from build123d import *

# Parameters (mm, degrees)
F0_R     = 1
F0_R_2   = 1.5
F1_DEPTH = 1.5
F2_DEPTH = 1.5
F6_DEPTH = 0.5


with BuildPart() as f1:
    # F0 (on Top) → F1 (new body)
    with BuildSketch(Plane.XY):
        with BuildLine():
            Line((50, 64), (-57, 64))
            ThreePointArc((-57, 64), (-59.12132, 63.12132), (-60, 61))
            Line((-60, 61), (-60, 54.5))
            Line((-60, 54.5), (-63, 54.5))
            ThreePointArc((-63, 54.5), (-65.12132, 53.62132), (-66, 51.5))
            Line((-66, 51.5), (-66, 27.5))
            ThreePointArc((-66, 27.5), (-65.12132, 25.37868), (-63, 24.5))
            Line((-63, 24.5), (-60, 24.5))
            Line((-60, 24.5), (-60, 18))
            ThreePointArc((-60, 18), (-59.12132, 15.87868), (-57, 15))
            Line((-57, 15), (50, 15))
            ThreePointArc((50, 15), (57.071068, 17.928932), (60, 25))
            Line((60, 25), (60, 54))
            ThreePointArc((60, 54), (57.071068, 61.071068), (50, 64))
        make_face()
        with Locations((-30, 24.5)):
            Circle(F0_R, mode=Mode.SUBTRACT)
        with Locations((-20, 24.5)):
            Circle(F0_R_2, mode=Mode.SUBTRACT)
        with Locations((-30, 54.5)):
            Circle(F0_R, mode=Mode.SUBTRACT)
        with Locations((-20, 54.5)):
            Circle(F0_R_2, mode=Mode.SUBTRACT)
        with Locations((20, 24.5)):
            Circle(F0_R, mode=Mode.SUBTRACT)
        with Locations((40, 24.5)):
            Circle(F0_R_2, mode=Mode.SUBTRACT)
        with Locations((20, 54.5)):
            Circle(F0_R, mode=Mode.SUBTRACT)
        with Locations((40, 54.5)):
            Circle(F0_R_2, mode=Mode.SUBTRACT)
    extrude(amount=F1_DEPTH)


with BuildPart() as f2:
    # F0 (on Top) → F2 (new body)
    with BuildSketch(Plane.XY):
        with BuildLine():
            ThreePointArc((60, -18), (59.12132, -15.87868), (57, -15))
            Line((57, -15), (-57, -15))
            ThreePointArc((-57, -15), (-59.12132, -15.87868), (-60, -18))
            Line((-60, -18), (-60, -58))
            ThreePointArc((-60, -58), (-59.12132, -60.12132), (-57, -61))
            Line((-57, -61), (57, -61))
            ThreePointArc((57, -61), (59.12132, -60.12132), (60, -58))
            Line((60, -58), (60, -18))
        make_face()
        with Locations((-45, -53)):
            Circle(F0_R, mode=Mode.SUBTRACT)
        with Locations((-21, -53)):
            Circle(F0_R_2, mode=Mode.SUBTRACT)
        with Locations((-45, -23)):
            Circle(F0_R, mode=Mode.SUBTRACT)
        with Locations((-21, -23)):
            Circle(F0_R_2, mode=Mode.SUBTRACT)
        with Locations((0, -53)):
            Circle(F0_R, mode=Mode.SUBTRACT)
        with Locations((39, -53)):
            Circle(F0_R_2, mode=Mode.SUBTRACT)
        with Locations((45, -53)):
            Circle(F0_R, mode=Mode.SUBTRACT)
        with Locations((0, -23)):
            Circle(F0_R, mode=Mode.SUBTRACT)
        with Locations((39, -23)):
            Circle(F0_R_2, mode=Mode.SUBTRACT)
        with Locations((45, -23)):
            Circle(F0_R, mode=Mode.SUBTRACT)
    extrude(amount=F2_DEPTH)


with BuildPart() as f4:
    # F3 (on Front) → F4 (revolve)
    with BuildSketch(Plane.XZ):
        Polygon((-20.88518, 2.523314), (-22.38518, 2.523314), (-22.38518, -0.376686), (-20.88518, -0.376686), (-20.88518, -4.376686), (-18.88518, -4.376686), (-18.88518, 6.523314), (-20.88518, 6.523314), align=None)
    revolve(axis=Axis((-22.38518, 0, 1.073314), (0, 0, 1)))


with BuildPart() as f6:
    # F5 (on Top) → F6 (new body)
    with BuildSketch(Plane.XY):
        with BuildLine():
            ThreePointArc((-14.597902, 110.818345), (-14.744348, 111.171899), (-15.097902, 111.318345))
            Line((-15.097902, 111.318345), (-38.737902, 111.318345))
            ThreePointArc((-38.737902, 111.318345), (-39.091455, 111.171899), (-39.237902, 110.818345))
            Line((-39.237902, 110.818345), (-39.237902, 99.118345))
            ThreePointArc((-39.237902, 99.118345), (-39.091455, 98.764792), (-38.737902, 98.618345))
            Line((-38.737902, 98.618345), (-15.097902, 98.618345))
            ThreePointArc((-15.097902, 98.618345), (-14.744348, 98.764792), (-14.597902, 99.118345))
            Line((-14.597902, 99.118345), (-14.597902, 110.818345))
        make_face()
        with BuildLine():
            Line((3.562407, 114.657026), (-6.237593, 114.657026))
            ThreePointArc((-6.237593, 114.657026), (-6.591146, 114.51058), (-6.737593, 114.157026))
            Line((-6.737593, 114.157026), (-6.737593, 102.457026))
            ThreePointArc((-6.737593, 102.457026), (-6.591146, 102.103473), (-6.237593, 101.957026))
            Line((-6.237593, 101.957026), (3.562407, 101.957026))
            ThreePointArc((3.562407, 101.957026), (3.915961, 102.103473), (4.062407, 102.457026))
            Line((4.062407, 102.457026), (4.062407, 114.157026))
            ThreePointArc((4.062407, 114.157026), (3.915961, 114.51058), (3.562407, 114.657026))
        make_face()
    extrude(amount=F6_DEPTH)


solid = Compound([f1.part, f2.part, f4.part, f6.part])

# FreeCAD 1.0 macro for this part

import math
import FreeCAD as App
import Part
import Sketcher

doc = App.newDocument("Part")
body = doc.addObject("PartDesign::Body", "Body")

sketch1 = doc.addObject("Sketcher::SketchObject", "Sketch")
body.addObject(sketch1)
sketch1.AttachmentSupport = (doc.XY_Plane, [""])
sketch1.MapMode = "FlatFace"
sketch1.addGeometry([
    Part.LineSegment(App.Vector(50, 64, 0), App.Vector(-57, 64, 0)),
    Part.ArcOfCircle(Part.Circle(App.Vector(-57, 61, 0), App.Vector(0, 0, 1), 3), math.radians(90), math.radians(180)),
    Part.LineSegment(App.Vector(-60, 61, 0), App.Vector(-60, 54.5, 0)),
    Part.LineSegment(App.Vector(-60, 54.5, 0), App.Vector(-63, 54.5, 0)),
    Part.ArcOfCircle(Part.Circle(App.Vector(-63, 51.5, 0), App.Vector(0, 0, 1), 3), math.radians(90), math.radians(180)),
    Part.LineSegment(App.Vector(-66, 51.5, 0), App.Vector(-66, 27.5, 0)),
    Part.ArcOfCircle(Part.Circle(App.Vector(-63, 27.5, 0), App.Vector(0, 0, 1), 3), math.radians(-180), math.radians(-90)),
    Part.LineSegment(App.Vector(-63, 24.5, 0), App.Vector(-60, 24.5, 0)),
    Part.LineSegment(App.Vector(-60, 24.5, 0), App.Vector(-60, 18, 0)),
    Part.ArcOfCircle(Part.Circle(App.Vector(-57, 18, 0), App.Vector(0, 0, 1), 3), math.radians(-180), math.radians(-90)),
    Part.LineSegment(App.Vector(-57, 15, 0), App.Vector(50, 15, 0)),
    Part.ArcOfCircle(Part.Circle(App.Vector(50, 25, 0), App.Vector(0, 0, 1), 10), math.radians(-90), math.radians(0)),
    Part.LineSegment(App.Vector(60, 25, 0), App.Vector(60, 54, 0)),
    Part.ArcOfCircle(Part.Circle(App.Vector(50, 54, 0), App.Vector(0, 0, 1), 10), math.radians(0), math.radians(90)),
    Part.Circle(App.Vector(-30, 24.5, 0), App.Vector(0, 0, 1), 1),
    Part.Circle(App.Vector(-20, 24.5, 0), App.Vector(0, 0, 1), 1.5),
    Part.Circle(App.Vector(20, 24.5, 0), App.Vector(0, 0, 1), 1),
    Part.Circle(App.Vector(40, 24.5, 0), App.Vector(0, 0, 1), 1.5),
    Part.Circle(App.Vector(-30, 54.5, 0), App.Vector(0, 0, 1), 1),
    Part.Circle(App.Vector(-20, 54.5, 0), App.Vector(0, 0, 1), 1.5),
    Part.Circle(App.Vector(20, 54.5, 0), App.Vector(0, 0, 1), 1),
    Part.Circle(App.Vector(40, 54.5, 0), App.Vector(0, 0, 1), 1.5),
], False)
sketch1.addConstraint([
    Sketcher.Constraint("Tangent", 0, 2, 1, 1),
    Sketcher.Constraint("Tangent", 1, 2, 2, 1),
    Sketcher.Constraint("Coincident", 2, 2, 3, 1),
    Sketcher.Constraint("Tangent", 3, 2, 4, 1),
    Sketcher.Constraint("Tangent", 4, 2, 5, 1),
    Sketcher.Constraint("Tangent", 5, 2, 6, 1),
    Sketcher.Constraint("Tangent", 6, 2, 7, 1),
    Sketcher.Constraint("Coincident", 7, 2, 8, 1),
    Sketcher.Constraint("Tangent", 8, 2, 9, 1),
    Sketcher.Constraint("Tangent", 9, 2, 10, 1),
    Sketcher.Constraint("Tangent", 10, 2, 11, 1),
    Sketcher.Constraint("Tangent", 11, 2, 12, 1),
    Sketcher.Constraint("Tangent", 12, 2, 13, 1),
    Sketcher.Constraint("Tangent", 13, 2, 0, 1),
    Sketcher.Constraint("Horizontal", 0),
    Sketcher.Constraint("Vertical", 2),
    Sketcher.Constraint("Horizontal", 3),
    Sketcher.Constraint("Vertical", 5),
    Sketcher.Constraint("Horizontal", 7),
    Sketcher.Constraint("Vertical", 8),
    Sketcher.Constraint("Horizontal", 10),
    Sketcher.Constraint("Vertical", 12),
    Sketcher.Constraint("Equal", 1, 4),
    Sketcher.Constraint("Equal", 4, 6),
    Sketcher.Constraint("Equal", 6, 9),
    Sketcher.Constraint("Equal", 11, 13),
    Sketcher.Constraint("Equal", 14, 16),
    Sketcher.Constraint("Equal", 15, 17),
    Sketcher.Constraint("Equal", 16, 18),
    Sketcher.Constraint("Equal", 17, 19),
    Sketcher.Constraint("Equal", 18, 20),
    Sketcher.Constraint("Equal", 19, 21),
    Sketcher.Constraint("Symmetric", 15, 3, 16, 3, -2),
    Sketcher.Constraint("Symmetric", 19, 3, 20, 3, -2),
    Sketcher.Constraint("Horizontal", 14, 3, 15, 3),
    Sketcher.Constraint("Horizontal", 16, 3, 17, 3),
    Sketcher.Constraint("Horizontal", 18, 3, 19, 3),
    Sketcher.Constraint("Horizontal", 20, 3, 21, 3),
    Sketcher.Constraint("Horizontal", 21, 3, 2, 2),
    Sketcher.Constraint("Horizontal", 17, 3, 6, 2),
    Sketcher.Constraint("Vertical", 1, 3, 9, 3),
    Sketcher.Constraint("Vertical", 14, 3, 18, 3),
    Sketcher.Constraint("Vertical", 15, 3, 19, 3),
    Sketcher.Constraint("Vertical", 17, 3, 21, 3),
    Sketcher.Constraint("Equal", 2, 8),
    Sketcher.Constraint("Diameter", 14, 2.0),
    Sketcher.Constraint("Diameter", 15, 3.0),
    Sketcher.Constraint("Radius", 1, 3.000001),
    Sketcher.Constraint("Radius", 11, 9.999999),
    Sketcher.Constraint("DistanceX", 0, 2, 0, 1, 107.0),
    Sketcher.Constraint("DistanceX", 3, 2, 3, 1, 3.0),
    Sketcher.Constraint("DistanceY", 5, 2, 5, 1, 24.0),
    Sketcher.Constraint("DistanceY", 12, 1, 12, 2, 29.0),
    Sketcher.Constraint("DistanceX", 1, 3, -1, 1, 56.999999),
    Sketcher.Constraint("DistanceY", -1, 1, 1, 3, 60.999999),
    Sketcher.Constraint("DistanceX", 14, 3, -1, 1, 30.0),
    Sketcher.Constraint("DistanceX", 15, 3, -1, 1, 20.0),
    Sketcher.Constraint("DistanceX", -1, 1, 17, 3, 40.0),
])
pad1 = doc.addObject("PartDesign::Pad", "Pad")
body.addObject(pad1)
pad1.Profile = sketch1
pad1.Length = 1.5
body2 = doc.addObject("PartDesign::Body", "Body001")

sketch2 = doc.addObject("Sketcher::SketchObject", "Sketch001")
body2.addObject(sketch2)
sketch2.AttachmentSupport = (doc.getObject("XY_Plane001"), [""])
sketch2.MapMode = "FlatFace"
sketch2.addGeometry([
    Part.ArcOfCircle(Part.Circle(App.Vector(57, -18, 0), App.Vector(0, 0, 1), 3), math.radians(0), math.radians(90)),
    Part.LineSegment(App.Vector(57, -15, 0), App.Vector(-57, -15, 0)),
    Part.ArcOfCircle(Part.Circle(App.Vector(-57, -18, 0), App.Vector(0, 0, 1), 3), math.radians(90), math.radians(180)),
    Part.LineSegment(App.Vector(-60, -18, 0), App.Vector(-60, -58, 0)),
    Part.ArcOfCircle(Part.Circle(App.Vector(-57, -58, 0), App.Vector(0, 0, 1), 3), math.radians(-180), math.radians(-90)),
    Part.LineSegment(App.Vector(-57, -61, 0), App.Vector(57, -61, 0)),
    Part.ArcOfCircle(Part.Circle(App.Vector(57, -58, 0), App.Vector(0, 0, 1), 3), math.radians(-90), math.radians(0)),
    Part.LineSegment(App.Vector(60, -58, 0), App.Vector(60, -18, 0)),
    Part.Circle(App.Vector(-45, -53, 0), App.Vector(0, 0, 1), 1),
    Part.Circle(App.Vector(-21, -53, 0), App.Vector(0, 0, 1), 1.5),
    Part.Circle(App.Vector(0, -53, 0), App.Vector(0, 0, 1), 1),
    Part.Circle(App.Vector(39, -53, 0), App.Vector(0, 0, 1), 1.5),
    Part.Circle(App.Vector(45, -53, 0), App.Vector(0, 0, 1), 1),
    Part.Circle(App.Vector(-45, -23, 0), App.Vector(0, 0, 1), 1),
    Part.Circle(App.Vector(-21, -23, 0), App.Vector(0, 0, 1), 1.5),
    Part.Circle(App.Vector(0, -23, 0), App.Vector(0, 0, 1), 1),
    Part.Circle(App.Vector(39, -23, 0), App.Vector(0, 0, 1), 1.5),
    Part.Circle(App.Vector(45, -23, 0), App.Vector(0, 0, 1), 1),
], False)
sketch2.addConstraint([
    Sketcher.Constraint("Tangent", 0, 2, 1, 1),
    Sketcher.Constraint("Tangent", 1, 2, 2, 1),
    Sketcher.Constraint("Tangent", 2, 2, 3, 1),
    Sketcher.Constraint("Tangent", 3, 2, 4, 1),
    Sketcher.Constraint("Tangent", 4, 2, 5, 1),
    Sketcher.Constraint("Tangent", 5, 2, 6, 1),
    Sketcher.Constraint("Tangent", 6, 2, 7, 1),
    Sketcher.Constraint("Tangent", 7, 2, 0, 1),
    Sketcher.Constraint("Horizontal", 1),
    Sketcher.Constraint("Vertical", 3),
    Sketcher.Constraint("Horizontal", 5),
    Sketcher.Constraint("Vertical", 7),
    Sketcher.Constraint("Equal", 0, 2),
    Sketcher.Constraint("Equal", 2, 4),
    Sketcher.Constraint("Equal", 4, 6),
    Sketcher.Constraint("Equal", 8, 10),
    Sketcher.Constraint("Equal", 9, 11),
    Sketcher.Constraint("Equal", 10, 12),
    Sketcher.Constraint("Equal", 12, 13),
    Sketcher.Constraint("Equal", 11, 14),
    Sketcher.Constraint("Equal", 13, 15),
    Sketcher.Constraint("Equal", 14, 16),
    Sketcher.Constraint("Equal", 15, 17),
    Sketcher.Constraint("Symmetric", 8, 3, 12, 3, -2),
    Sketcher.Constraint("Symmetric", 13, 3, 17, 3, -2),
    Sketcher.Constraint("PointOnObject", 10, 3, -2),
    Sketcher.Constraint("PointOnObject", 15, 3, -2),
    Sketcher.Constraint("Horizontal", 8, 3, 9, 3),
    Sketcher.Constraint("Horizontal", 9, 3, 10, 3),
    Sketcher.Constraint("Horizontal", 10, 3, 11, 3),
    Sketcher.Constraint("Horizontal", 13, 3, 14, 3),
    Sketcher.Constraint("Horizontal", 14, 3, 15, 3),
    Sketcher.Constraint("Horizontal", 15, 3, 16, 3),
    Sketcher.Constraint("Vertical", 8, 3, 13, 3),
    Sketcher.Constraint("Vertical", 9, 3, 14, 3),
    Sketcher.Constraint("Vertical", 11, 3, 16, 3),
    Sketcher.Constraint("Diameter", 8, 2.0),
    Sketcher.Constraint("Diameter", 9, 3.0),
    Sketcher.Constraint("Radius", 0, 3.000001),
    Sketcher.Constraint("DistanceX", 1, 2, 1, 1, 114.0),
    Sketcher.Constraint("DistanceY", 3, 2, 3, 1, 40.0),
    Sketcher.Constraint("DistanceX", -1, 1, 0, 3, 56.999999),
    Sketcher.Constraint("DistanceY", 0, 3, -1, 1, 18.000001),
    Sketcher.Constraint("DistanceX", 8, 3, -1, 1, 45.0),
    Sketcher.Constraint("DistanceY", 8, 3, -1, 1, 53.0),
    Sketcher.Constraint("DistanceX", 9, 3, -1, 1, 21.0),
    Sketcher.Constraint("DistanceX", -1, 1, 11, 3, 39.0),
    Sketcher.Constraint("DistanceY", 13, 3, -1, 1, 23.0),
])
pad2 = doc.addObject("PartDesign::Pad", "Pad001")
body2.addObject(pad2)
pad2.Profile = sketch2
pad2.Length = 1.5
body3 = doc.addObject("PartDesign::Body", "Body002")

sketch3 = doc.addObject("Sketcher::SketchObject", "Sketch002")
body3.addObject(sketch3)
sketch3.AttachmentSupport = (doc.getObject("XZ_Plane002"), [""])
sketch3.MapMode = "FlatFace"
sketch3.addGeometry([
    Part.LineSegment(App.Vector(-20.9, 2.5, 0), App.Vector(-22.4, 2.5, 0)),
    Part.LineSegment(App.Vector(-22.4, 2.5, 0), App.Vector(-22.4, -0.4, 0)),
    Part.LineSegment(App.Vector(-22.4, -0.4, 0), App.Vector(-20.9, -0.4, 0)),
    Part.LineSegment(App.Vector(-20.9, -0.4, 0), App.Vector(-20.9, -4.4, 0)),
    Part.LineSegment(App.Vector(-20.9, -4.4, 0), App.Vector(-18.9, -4.4, 0)),
    Part.LineSegment(App.Vector(-18.9, -4.4, 0), App.Vector(-18.9, 6.5, 0)),
    Part.LineSegment(App.Vector(-18.9, 6.5, 0), App.Vector(-20.9, 6.5, 0)),
    Part.LineSegment(App.Vector(-20.9, 6.5, 0), App.Vector(-20.9, 2.5, 0)),
], False)
sketch3.addGeometry(Part.LineSegment(App.Vector(-22.4, -4.4, 0), App.Vector(-22.4, 6.5, 0)), True)
sketch3.addConstraint([
    Sketcher.Constraint("Coincident", 0, 2, 1, 1),
    Sketcher.Constraint("Coincident", 1, 2, 2, 1),
    Sketcher.Constraint("Coincident", 2, 2, 3, 1),
    Sketcher.Constraint("Coincident", 3, 2, 4, 1),
    Sketcher.Constraint("Coincident", 4, 2, 5, 1),
    Sketcher.Constraint("Coincident", 5, 2, 6, 1),
    Sketcher.Constraint("Coincident", 6, 2, 7, 1),
    Sketcher.Constraint("Coincident", 7, 2, 0, 1),
    Sketcher.Constraint("Horizontal", 0),
    Sketcher.Constraint("Vertical", 1),
    Sketcher.Constraint("Horizontal", 2),
    Sketcher.Constraint("Vertical", 3),
    Sketcher.Constraint("Horizontal", 4),
    Sketcher.Constraint("Vertical", 5),
    Sketcher.Constraint("Horizontal", 6),
    Sketcher.Constraint("Vertical", 7),
    Sketcher.Constraint("Vertical", 8),
    Sketcher.Constraint("Horizontal", 4, 2, 8, 1),
    Sketcher.Constraint("Horizontal", 6, 2, 8, 2),
    Sketcher.Constraint("Vertical", 3, 2, 6, 2),
    Sketcher.Constraint("Vertical", 1, 2, 8, 1),
    Sketcher.Constraint("Equal", 3, 7),
    Sketcher.Constraint("DistanceX", 4, 1, 4, 2, 2.0),
    Sketcher.Constraint("DistanceY", 3, 2, 3, 1, 4.0),
    Sketcher.Constraint("DistanceX", 0, 2, 0, 1, 1.5),
    Sketcher.Constraint("DistanceY", 1, 2, 1, 1, 2.9),
    Sketcher.Constraint("DistanceX", 0, 2, -1, 1, 22.38518),
    Sketcher.Constraint("DistanceY", -1, 1, 0, 2, 2.523314),
])
revolution = doc.addObject("PartDesign::Revolution", "Revolution")
body3.addObject(revolution)
revolution.Profile = sketch3
revolution.ReferenceAxis = (sketch3, ["Axis0"])
revolution.Angle = 360
body4 = doc.addObject("PartDesign::Body", "Body003")
body4.AllowCompound = True

sketch4 = doc.addObject("Sketcher::SketchObject", "Sketch003")
body4.addObject(sketch4)
sketch4.AttachmentSupport = (doc.getObject("XY_Plane003"), [""])
sketch4.MapMode = "FlatFace"
sketch4.addGeometry([
    Part.ArcOfCircle(Part.Circle(App.Vector(-15.1, 110.82, 0), App.Vector(0, 0, 1), 0.5), math.radians(0), math.radians(90)),
    Part.LineSegment(App.Vector(-15.1, 111.32, 0), App.Vector(-38.74, 111.32, 0)),
    Part.ArcOfCircle(Part.Circle(App.Vector(-38.74, 110.82, 0), App.Vector(0, 0, 1), 0.5), math.radians(90), math.radians(180)),
    Part.LineSegment(App.Vector(-39.24, 110.82, 0), App.Vector(-39.24, 99.12, 0)),
    Part.ArcOfCircle(Part.Circle(App.Vector(-38.74, 99.12, 0), App.Vector(0, 0, 1), 0.5), math.radians(-180), math.radians(-90)),
    Part.LineSegment(App.Vector(-38.74, 98.62, 0), App.Vector(-15.1, 98.62, 0)),
    Part.ArcOfCircle(Part.Circle(App.Vector(-15.1, 99.12, 0), App.Vector(0, 0, 1), 0.5), math.radians(-90), math.radians(0)),
    Part.LineSegment(App.Vector(-14.6, 99.12, 0), App.Vector(-14.6, 110.82, 0)),
    Part.LineSegment(App.Vector(3.56, 114.66, 0), App.Vector(-6.24, 114.66, 0)),
    Part.ArcOfCircle(Part.Circle(App.Vector(-6.24, 114.16, 0), App.Vector(0, 0, 1), 0.5), math.radians(90), math.radians(180)),
    Part.LineSegment(App.Vector(-6.74, 114.16, 0), App.Vector(-6.74, 102.46, 0)),
    Part.ArcOfCircle(Part.Circle(App.Vector(-6.24, 102.46, 0), App.Vector(0, 0, 1), 0.5), math.radians(-180), math.radians(-90)),
    Part.LineSegment(App.Vector(-6.24, 101.96, 0), App.Vector(3.56, 101.96, 0)),
    Part.ArcOfCircle(Part.Circle(App.Vector(3.56, 102.46, 0), App.Vector(0, 0, 1), 0.5), math.radians(-90), math.radians(0)),
    Part.LineSegment(App.Vector(4.06, 102.46, 0), App.Vector(4.06, 114.16, 0)),
    Part.ArcOfCircle(Part.Circle(App.Vector(3.56, 114.16, 0), App.Vector(0, 0, 1), 0.5), math.radians(0), math.radians(90)),
], False)
sketch4.addConstraint([
    Sketcher.Constraint("Coincident", 0, 2, 1, 1),
    Sketcher.Constraint("Tangent", 1, 2, 2, 1),
    Sketcher.Constraint("Tangent", 2, 2, 3, 1),
    Sketcher.Constraint("Coincident", 3, 2, 4, 1),
    Sketcher.Constraint("Coincident", 4, 2, 5, 1),
    Sketcher.Constraint("Tangent", 5, 2, 6, 1),
    Sketcher.Constraint("Tangent", 6, 2, 7, 1),
    Sketcher.Constraint("Coincident", 7, 2, 0, 1),
    Sketcher.Constraint("Tangent", 8, 2, 9, 1),
    Sketcher.Constraint("Tangent", 9, 2, 10, 1),
    Sketcher.Constraint("Coincident", 10, 2, 11, 1),
    Sketcher.Constraint("Coincident", 11, 2, 12, 1),
    Sketcher.Constraint("Tangent", 12, 2, 13, 1),
    Sketcher.Constraint("Tangent", 13, 2, 14, 1),
    Sketcher.Constraint("Coincident", 14, 2, 15, 1),
    Sketcher.Constraint("Coincident", 15, 2, 8, 1),
    Sketcher.Constraint("Horizontal", 1),
    Sketcher.Constraint("Vertical", 3),
    Sketcher.Constraint("Horizontal", 5),
    Sketcher.Constraint("Vertical", 7),
    Sketcher.Constraint("Horizontal", 8),
    Sketcher.Constraint("Vertical", 10),
    Sketcher.Constraint("Horizontal", 12),
    Sketcher.Constraint("Vertical", 14),
    Sketcher.Constraint("Equal", 0, 2),
    Sketcher.Constraint("Equal", 2, 4),
    Sketcher.Constraint("Equal", 4, 6),
    Sketcher.Constraint("Equal", 6, 9),
    Sketcher.Constraint("Equal", 9, 11),
    Sketcher.Constraint("Equal", 11, 13),
    Sketcher.Constraint("Equal", 13, 15),
    Sketcher.Constraint("Horizontal", 6, 3, 3, 2),
    Sketcher.Constraint("Horizontal", 2, 2, 7, 2),
    Sketcher.Constraint("Horizontal", 13, 3, 10, 2),
    Sketcher.Constraint("Horizontal", 9, 2, 14, 2),
    Sketcher.Constraint("Vertical", 6, 3, 0, 2),
    Sketcher.Constraint("Vertical", 1, 2, 4, 2),
    Sketcher.Constraint("Vertical", 8, 2, 11, 2),
    Sketcher.Constraint("Vertical", 12, 2, 15, 2),
    Sketcher.Constraint("Equal", 7, 10),
    Sketcher.Constraint("Radius", 2, 0.5),
    Sketcher.Constraint("DistanceX", 8, 2, 8, 1, 9.8),
    Sketcher.Constraint("DistanceY", 3, 2, 3, 1, 11.7),
    Sketcher.Constraint("DistanceX", 1, 2, 1, 1, 23.64),
    Sketcher.Constraint("DistanceX", 0, 3, -1, 1, 15.0979),
    Sketcher.Constraint("DistanceX", 11, 3, -1, 1, 6.237592),
    Sketcher.Constraint("DistanceY", -1, 1, 15, 3, 114.157028),
    Sketcher.Constraint("DistanceY", 0, 3, 9, 3, 3.338679),
])
pad3 = doc.addObject("PartDesign::Pad", "Pad002")
body4.addObject(pad3)
pad3.Profile = sketch4
pad3.Length = 0.5

doc.recompute()
